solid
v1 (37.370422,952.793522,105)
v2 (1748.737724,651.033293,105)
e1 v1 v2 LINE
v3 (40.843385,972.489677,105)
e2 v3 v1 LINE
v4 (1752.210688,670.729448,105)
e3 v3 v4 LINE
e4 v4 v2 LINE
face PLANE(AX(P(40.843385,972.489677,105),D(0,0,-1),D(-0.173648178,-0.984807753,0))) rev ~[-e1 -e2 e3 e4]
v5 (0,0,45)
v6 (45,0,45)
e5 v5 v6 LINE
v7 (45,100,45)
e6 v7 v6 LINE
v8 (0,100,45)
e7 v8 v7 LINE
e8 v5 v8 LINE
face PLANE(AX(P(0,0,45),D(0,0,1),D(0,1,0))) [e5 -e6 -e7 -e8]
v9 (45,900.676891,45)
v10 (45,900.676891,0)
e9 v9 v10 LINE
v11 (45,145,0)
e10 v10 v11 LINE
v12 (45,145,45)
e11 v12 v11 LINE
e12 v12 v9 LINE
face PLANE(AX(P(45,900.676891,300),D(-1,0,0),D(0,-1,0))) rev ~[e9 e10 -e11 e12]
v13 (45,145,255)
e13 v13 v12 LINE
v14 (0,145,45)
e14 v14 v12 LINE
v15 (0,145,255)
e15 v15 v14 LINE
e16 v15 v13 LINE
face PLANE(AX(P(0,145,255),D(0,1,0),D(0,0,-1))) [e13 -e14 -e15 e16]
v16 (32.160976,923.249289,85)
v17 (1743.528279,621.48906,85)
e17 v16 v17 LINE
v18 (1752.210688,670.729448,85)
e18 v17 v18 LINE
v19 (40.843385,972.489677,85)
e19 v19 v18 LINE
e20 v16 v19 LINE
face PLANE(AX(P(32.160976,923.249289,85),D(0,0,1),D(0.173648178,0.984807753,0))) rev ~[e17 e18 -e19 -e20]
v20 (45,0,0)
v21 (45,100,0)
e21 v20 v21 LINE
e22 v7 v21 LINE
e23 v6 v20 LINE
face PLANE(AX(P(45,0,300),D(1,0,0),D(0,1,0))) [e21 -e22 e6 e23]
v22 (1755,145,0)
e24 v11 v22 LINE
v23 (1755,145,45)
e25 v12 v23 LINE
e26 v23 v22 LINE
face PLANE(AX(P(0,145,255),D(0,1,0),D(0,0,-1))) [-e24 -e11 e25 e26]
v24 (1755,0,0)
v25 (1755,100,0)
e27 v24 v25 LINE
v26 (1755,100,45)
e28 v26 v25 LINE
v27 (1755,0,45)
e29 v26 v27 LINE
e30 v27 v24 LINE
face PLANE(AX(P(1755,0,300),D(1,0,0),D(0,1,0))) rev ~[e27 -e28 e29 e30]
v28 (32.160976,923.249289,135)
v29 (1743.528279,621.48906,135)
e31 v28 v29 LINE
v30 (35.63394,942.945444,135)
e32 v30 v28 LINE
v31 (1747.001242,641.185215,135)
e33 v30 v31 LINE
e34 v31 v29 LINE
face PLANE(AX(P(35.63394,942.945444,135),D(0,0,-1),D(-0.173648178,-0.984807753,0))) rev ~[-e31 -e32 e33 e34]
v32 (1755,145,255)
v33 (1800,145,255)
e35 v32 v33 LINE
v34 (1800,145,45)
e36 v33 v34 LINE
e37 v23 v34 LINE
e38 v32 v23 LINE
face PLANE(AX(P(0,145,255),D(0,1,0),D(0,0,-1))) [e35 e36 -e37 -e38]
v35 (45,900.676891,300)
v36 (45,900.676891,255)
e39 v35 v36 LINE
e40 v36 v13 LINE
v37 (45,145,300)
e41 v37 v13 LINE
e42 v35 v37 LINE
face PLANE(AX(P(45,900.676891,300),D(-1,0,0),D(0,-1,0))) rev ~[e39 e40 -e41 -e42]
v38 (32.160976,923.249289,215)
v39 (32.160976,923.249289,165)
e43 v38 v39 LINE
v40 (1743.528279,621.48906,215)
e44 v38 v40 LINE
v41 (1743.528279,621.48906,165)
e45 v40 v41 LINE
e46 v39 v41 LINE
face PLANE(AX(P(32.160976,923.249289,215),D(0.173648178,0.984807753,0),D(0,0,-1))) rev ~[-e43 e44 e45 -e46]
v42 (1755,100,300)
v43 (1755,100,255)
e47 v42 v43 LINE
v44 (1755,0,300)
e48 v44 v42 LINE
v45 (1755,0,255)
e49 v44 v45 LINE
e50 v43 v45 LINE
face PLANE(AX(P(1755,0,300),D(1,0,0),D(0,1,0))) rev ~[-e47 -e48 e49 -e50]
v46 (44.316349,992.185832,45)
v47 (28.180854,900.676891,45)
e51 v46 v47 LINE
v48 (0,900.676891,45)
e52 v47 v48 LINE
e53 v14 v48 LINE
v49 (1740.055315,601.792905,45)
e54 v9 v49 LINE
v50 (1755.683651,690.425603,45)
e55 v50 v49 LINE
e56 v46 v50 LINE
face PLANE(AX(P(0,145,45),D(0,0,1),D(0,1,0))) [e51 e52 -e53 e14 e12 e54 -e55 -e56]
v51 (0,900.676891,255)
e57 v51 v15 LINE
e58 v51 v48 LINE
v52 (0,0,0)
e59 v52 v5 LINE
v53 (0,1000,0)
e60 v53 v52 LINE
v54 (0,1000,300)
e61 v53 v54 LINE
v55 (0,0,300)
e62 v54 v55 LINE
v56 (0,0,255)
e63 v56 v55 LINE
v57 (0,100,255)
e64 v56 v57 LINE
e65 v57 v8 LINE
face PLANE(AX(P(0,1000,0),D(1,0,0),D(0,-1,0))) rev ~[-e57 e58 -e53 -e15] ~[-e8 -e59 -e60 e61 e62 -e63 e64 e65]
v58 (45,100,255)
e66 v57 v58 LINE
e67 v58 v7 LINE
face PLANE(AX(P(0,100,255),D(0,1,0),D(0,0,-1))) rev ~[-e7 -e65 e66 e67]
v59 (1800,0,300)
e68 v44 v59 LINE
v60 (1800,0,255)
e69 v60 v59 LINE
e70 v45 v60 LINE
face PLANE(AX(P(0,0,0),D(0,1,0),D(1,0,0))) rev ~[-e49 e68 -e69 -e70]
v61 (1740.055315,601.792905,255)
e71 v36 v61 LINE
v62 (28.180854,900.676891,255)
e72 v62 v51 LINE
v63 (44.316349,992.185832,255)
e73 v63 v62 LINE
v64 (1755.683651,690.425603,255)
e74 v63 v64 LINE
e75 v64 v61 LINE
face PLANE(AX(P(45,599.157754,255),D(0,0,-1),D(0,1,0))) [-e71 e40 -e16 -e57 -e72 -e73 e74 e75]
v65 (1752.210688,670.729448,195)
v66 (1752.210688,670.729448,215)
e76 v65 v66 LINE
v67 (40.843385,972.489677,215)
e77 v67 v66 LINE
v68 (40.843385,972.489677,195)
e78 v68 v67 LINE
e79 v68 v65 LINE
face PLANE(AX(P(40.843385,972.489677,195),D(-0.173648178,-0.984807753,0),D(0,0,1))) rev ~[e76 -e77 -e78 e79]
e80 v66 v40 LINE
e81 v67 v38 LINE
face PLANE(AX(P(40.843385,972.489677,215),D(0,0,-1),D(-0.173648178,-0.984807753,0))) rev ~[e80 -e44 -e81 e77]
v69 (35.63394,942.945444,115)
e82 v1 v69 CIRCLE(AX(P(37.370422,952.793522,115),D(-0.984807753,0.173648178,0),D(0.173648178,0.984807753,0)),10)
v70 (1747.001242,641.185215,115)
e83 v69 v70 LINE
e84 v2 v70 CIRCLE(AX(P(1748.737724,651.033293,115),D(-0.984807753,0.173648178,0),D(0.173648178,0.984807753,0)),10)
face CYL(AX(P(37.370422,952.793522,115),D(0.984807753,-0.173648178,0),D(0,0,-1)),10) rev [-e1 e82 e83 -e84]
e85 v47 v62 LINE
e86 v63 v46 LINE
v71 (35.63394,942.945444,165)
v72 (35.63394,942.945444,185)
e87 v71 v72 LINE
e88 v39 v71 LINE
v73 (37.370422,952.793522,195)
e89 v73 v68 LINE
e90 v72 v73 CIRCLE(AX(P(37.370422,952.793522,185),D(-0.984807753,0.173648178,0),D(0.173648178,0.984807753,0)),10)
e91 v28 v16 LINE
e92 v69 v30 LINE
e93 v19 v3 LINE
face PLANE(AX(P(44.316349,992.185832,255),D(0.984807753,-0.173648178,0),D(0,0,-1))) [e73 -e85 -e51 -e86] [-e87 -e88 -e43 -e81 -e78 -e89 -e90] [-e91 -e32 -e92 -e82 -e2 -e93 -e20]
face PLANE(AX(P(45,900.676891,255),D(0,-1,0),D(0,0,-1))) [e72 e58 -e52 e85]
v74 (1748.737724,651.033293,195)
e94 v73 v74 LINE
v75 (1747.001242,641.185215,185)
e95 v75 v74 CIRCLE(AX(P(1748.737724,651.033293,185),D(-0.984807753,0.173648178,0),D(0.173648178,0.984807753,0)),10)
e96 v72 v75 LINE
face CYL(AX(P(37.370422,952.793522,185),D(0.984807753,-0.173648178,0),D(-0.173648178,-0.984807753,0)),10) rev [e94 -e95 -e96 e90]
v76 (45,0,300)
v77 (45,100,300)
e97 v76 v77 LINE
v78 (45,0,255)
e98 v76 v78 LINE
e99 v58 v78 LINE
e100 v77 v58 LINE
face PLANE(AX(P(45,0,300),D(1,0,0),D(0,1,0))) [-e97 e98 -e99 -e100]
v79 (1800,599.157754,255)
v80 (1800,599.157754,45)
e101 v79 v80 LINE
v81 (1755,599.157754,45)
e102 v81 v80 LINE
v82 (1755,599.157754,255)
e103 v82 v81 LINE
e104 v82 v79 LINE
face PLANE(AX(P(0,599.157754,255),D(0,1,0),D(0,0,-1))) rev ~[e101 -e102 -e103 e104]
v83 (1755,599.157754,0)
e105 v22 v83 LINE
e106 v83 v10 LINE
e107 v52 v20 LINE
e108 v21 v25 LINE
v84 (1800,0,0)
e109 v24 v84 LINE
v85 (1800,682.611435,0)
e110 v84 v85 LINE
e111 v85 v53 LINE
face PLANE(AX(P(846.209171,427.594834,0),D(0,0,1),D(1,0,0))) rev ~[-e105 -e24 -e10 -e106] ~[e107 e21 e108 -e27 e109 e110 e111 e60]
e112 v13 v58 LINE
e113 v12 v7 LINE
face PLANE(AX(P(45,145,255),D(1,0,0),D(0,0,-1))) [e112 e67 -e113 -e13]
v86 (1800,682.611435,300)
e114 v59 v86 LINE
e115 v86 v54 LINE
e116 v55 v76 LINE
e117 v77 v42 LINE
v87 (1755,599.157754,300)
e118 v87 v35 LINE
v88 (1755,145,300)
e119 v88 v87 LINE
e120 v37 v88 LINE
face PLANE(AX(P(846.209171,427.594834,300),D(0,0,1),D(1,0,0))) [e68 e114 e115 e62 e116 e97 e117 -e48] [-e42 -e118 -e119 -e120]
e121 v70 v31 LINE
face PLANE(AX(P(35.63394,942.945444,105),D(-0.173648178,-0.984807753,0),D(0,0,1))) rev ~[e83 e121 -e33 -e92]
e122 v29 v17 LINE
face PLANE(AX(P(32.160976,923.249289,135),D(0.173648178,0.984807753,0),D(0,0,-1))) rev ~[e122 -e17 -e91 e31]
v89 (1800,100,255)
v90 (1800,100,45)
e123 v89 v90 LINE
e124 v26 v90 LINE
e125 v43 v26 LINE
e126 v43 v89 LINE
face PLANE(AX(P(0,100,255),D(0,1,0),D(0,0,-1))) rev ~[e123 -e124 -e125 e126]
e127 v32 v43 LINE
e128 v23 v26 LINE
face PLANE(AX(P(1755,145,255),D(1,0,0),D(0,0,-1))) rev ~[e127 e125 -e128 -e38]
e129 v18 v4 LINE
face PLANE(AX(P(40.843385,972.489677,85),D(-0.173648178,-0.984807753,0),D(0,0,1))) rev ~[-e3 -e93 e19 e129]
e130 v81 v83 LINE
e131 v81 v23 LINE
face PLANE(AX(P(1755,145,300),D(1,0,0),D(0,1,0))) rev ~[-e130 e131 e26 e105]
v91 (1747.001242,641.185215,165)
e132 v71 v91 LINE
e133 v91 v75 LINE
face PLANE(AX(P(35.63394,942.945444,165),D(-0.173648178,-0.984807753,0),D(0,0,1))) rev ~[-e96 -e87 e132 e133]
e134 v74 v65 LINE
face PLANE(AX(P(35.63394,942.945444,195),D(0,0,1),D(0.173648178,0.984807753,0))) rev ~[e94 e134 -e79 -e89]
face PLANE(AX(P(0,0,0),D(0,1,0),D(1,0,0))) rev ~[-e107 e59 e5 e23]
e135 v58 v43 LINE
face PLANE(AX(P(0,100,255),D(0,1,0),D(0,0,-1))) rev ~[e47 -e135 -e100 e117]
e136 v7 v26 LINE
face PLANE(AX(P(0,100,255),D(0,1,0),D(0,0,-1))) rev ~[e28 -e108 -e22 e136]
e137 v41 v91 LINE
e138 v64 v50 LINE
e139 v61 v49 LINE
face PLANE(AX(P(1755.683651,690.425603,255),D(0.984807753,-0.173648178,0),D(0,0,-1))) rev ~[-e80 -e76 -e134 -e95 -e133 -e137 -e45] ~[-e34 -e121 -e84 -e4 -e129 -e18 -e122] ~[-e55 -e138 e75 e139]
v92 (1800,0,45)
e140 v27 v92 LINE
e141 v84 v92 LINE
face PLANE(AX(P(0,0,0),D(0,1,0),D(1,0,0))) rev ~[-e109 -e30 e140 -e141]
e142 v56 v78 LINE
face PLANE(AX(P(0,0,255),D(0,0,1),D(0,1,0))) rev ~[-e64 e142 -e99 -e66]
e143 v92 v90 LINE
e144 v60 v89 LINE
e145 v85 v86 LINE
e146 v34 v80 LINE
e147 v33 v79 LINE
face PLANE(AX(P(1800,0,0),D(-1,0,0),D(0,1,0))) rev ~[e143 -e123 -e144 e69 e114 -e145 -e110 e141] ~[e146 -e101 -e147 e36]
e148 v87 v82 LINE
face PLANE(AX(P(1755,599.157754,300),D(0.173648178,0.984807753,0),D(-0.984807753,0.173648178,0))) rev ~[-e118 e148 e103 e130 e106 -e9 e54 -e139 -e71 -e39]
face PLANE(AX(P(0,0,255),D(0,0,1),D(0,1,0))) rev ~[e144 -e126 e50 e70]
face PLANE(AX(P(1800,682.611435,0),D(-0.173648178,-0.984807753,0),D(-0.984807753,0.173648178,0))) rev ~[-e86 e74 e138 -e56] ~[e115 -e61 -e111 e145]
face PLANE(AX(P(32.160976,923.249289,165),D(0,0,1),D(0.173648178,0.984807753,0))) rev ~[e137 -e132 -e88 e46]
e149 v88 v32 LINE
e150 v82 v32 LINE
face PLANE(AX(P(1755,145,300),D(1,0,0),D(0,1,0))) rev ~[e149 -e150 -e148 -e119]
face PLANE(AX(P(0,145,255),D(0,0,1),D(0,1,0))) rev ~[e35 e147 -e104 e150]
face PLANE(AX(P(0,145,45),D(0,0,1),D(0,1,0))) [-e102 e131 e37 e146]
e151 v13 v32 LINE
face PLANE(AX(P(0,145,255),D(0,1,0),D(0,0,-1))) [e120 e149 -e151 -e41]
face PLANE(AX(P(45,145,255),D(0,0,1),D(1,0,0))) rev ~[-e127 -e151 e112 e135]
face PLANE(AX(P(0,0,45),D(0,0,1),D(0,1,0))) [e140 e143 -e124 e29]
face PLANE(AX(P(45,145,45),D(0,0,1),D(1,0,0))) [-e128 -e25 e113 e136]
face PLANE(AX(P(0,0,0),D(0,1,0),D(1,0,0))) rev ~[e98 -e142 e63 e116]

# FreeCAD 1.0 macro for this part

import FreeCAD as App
import Part
import Sketcher

V = App.Vector
Q = App.Units.Quantity


def edges_at(feature, points):
    """Names of the edges that pass closest to the given points."""
    edges = feature.Shape.Edges
    near = lambda p: min(range(len(edges)), key=lambda i: edges[i].distToShape(Part.Vertex(*p))[0])
    return sorted({f"Edge{near(p) + 1}" for p in points})


def add_polygon(sketch, points):
    """Adds a closed chain of lines whose ends are joined by coincident constraints."""
    first, n = sketch.GeometryCount, len(points)
    for a, b in zip(points, points[1:] + points[:1]):
        sketch.addGeometry(Part.LineSegment(App.Vector(*a, 0), App.Vector(*b, 0)), False)
    for i in range(n):
        sketch.addConstraint(Sketcher.Constraint("Coincident", first + i, 2, first + (i + 1) % n, 1))

doc = App.newDocument("Part")
body = doc.addObject("PartDesign::Body", "Body")

# Sketch on XY plane
sketch1 = body.newObject("Sketcher::SketchObject", "Sketch")
sketch1.AttachmentSupport = (doc.getObject("XY_Plane"), [""])
sketch1.MapMode = "FlatFace"
add_polygon(sketch1, [(0, 1000), (0, 0), (1800, 0), (1800, 682.611435)])  # lines 0-3
sketch1.addConstraint([
    Sketcher.Constraint("Vertical", 0),
    Sketcher.Constraint("Horizontal", 1),
    Sketcher.Constraint("Vertical", 2),
    Sketcher.Constraint("Coincident", 0, 2, -1, 1),
    Sketcher.Constraint("DistanceX", 1, 1, 1, 2, Q("1800 mm")),
    Sketcher.Constraint("DistanceY", 0, 2, 0, 1, Q("1000 mm")),
    Sketcher.Constraint("Angle", 3, Q("170 deg")),
])
pad1 = body.newObject("PartDesign::Pad", "Pad")
pad1.Profile = sketch1
pad1.Length = 300

# Sketch on XY plane
sketch2 = body.newObject("Sketcher::SketchObject", "Sketch001")
sketch2.AttachmentSupport = (doc.getObject("XY_Plane"), [""])
sketch2.MapMode = "FlatFace"
sketch2.AttachmentOffset = App.Placement(V(0, 0, 300), App.Rotation())
add_polygon(sketch2, [(45, 100), (45, 0), (1755, 0), (1755, 100)])  # lines 0-3
add_polygon(sketch2, [(45, 900.676891), (45, 145), (1755, 145), (1755, 599.157754)])  # lines 4-7
sketch2.addConstraint([
    Sketcher.Constraint("Vertical", 0),
    Sketcher.Constraint("Horizontal", 1),
    Sketcher.Constraint("Vertical", 2),
    Sketcher.Constraint("Horizontal", 3),
    Sketcher.Constraint("Vertical", 4),
    Sketcher.Constraint("Horizontal", 5),
    Sketcher.Constraint("Vertical", 6),
    Sketcher.Constraint("PointOnObject", 0, 2, -1),
    Sketcher.Constraint("Vertical", 3, 2, 4, 2),
    Sketcher.Constraint("Vertical", 2, 2, 5, 2),
    Sketcher.Constraint("DistanceX", 1, 1, 1, 2, Q("1710 mm")),
    Sketcher.Constraint("DistanceY", 0, 2, 0, 1, Q("100 mm")),
    Sketcher.Constraint("Angle", 7, Q("170 deg")),
    Sketcher.Constraint("DistanceX", -1, 1, 0, 2, Q("45 mm")),
    Sketcher.Constraint("DistanceY", -1, 1, 4, 2, Q("145 mm")),
    Sketcher.Constraint("DistanceY", 4, 2, 4, 1, Q("755.676891 mm")),
])
pocket1 = body.newObject("PartDesign::Pocket", "Pocket")
pocket1.Profile = sketch2
pocket1.Length = 300

# Sketch on YZ plane
sketch3 = body.newObject("Sketcher::SketchObject", "Sketch002")
sketch3.AttachmentSupport = (doc.getObject("YZ_Plane"), [""])
sketch3.MapMode = "FlatFace"
add_polygon(sketch3, [(599.157754, 255), (145, 255), (145, 45), (599.157754, 45)])  # lines 0-3
add_polygon(sketch3, [(100, 255), (0, 255), (0, 45), (100, 45)])  # lines 4-7
sketch3.addConstraint([
    Sketcher.Constraint("Horizontal", 0),
    Sketcher.Constraint("Vertical", 1),
    Sketcher.Constraint("Horizontal", 2),
    Sketcher.Constraint("Vertical", 3),
    Sketcher.Constraint("Horizontal", 4),
    Sketcher.Constraint("Vertical", 5),
    Sketcher.Constraint("Horizontal", 6),
    Sketcher.Constraint("Vertical", 7),
    Sketcher.Constraint("PointOnObject", 4, 2, -2),
    Sketcher.Constraint("Horizontal", 3, 2, 4, 2),
    Sketcher.Constraint("Horizontal", 2, 2, 5, 2),
    Sketcher.Constraint("DistanceX", 4, 2, 4, 1, Q("100 mm")),
    Sketcher.Constraint("DistanceY", 1, 2, 1, 1, Q("210 mm")),
    Sketcher.Constraint("DistanceX", -1, 1, 0, 2, Q("145 mm")),
    Sketcher.Constraint("DistanceY", -1, 1, 0, 2, Q("255 mm")),
    Sketcher.Constraint("DistanceX", 0, 2, 0, 1, Q("454.157754 mm")),
])
pocket2 = body.newObject("PartDesign::Pocket", "Pocket001")
pocket2.Profile = sketch3
pocket2.Length = 1800
pocket2.Reversed = True

# Sketch on XZ plane
sketch4 = body.newObject("Sketcher::SketchObject", "Sketch003")
sketch4.AttachmentSupport = (doc.getObject("XZ_Plane"), [""])
sketch4.MapMode = "FlatFace"
sketch4.AttachmentOffset = App.Placement(V(0, 0, -145), App.Rotation())
add_polygon(sketch4, [(45, 45), (45, 255), (1755, 255), (1755, 45)])  # lines 0-3
sketch4.addConstraint([
    Sketcher.Constraint("Vertical", 0),
    Sketcher.Constraint("Horizontal", 1),
    Sketcher.Constraint("Vertical", 2),
    Sketcher.Constraint("Horizontal", 3),
    Sketcher.Constraint("DistanceX", 1, 1, 1, 2, Q("1710 mm")),
    Sketcher.Constraint("DistanceY", 0, 1, 0, 2, Q("210 mm")),
    Sketcher.Constraint("DistanceX", -1, 1, 0, 2, Q("45 mm")),
    Sketcher.Constraint("DistanceY", -1, 1, 0, 2, Q("255 mm")),
])
pocket3 = body.newObject("PartDesign::Pocket", "Pocket002")
pocket3.Profile = sketch4
pocket3.Length = 45
pocket3.Reversed = True

# Sketch on YZ plane
sketch5 = body.newObject("Sketcher::SketchObject", "Sketch004")
sketch5.AttachmentSupport = (doc.getObject("YZ_Plane"), [""])
sketch5.MapMode = "FlatFace"
sketch5.AttachmentOffset = App.Placement(V(0, 0, 45), App.Rotation())
add_polygon(sketch5, [(900.676891, 255), (599.157754, 255), (599.157754, 45), (900.676891, 45)])  # lines 0-3
sketch5.addConstraint([
    Sketcher.Constraint("Horizontal", 0),
    Sketcher.Constraint("Vertical", 1),
    Sketcher.Constraint("Horizontal", 2),
    Sketcher.Constraint("Vertical", 3),
    Sketcher.Constraint("DistanceY", 1, 2, 1, 1, Q("210 mm")),
    Sketcher.Constraint("DistanceY", -1, 1, 0, 2, Q("255 mm")),
    Sketcher.Constraint("DistanceX", 0, 2, 0, 1, Q("301.519137 mm")),
    Sketcher.Constraint("DistanceX", -1, 1, 2, 2, Q("900.676891 mm")),
])
pocket4 = body.newObject("PartDesign::Pocket", "Pocket003")
pocket4.Profile = sketch5
pocket4.Length = 45

# Sketch on an angled plane
sketch6 = body.newObject("Sketcher::SketchObject", "Sketch005")
sketch6.Placement = App.Placement(V(171.010072, 969.84631, 0), App.Rotation(V(0.984807753, -0.173648178, 0), V(0, 0, -1), V(0.173648178, 0.984807753, 0), "ZXY"))
add_polygon(sketch6, [(-128.648178, -45), (-128.648178, -255), (1609.119724, -255), (1609.119724, -45)])  # lines 0-3
sketch6.addConstraint([
    Sketcher.Constraint("Vertical", 0),
    Sketcher.Constraint("Horizontal", 1),
    Sketcher.Constraint("Vertical", 2),
    Sketcher.Constraint("Horizontal", 3),
    Sketcher.Constraint("DistanceY", 0, 2, 0, 1, Q("210 mm")),
    Sketcher.Constraint("DistanceY", 0, 2, -1, 1, Q("255 mm")),
    Sketcher.Constraint("DistanceX", 1, 1, 1, 2, Q("1737.767902 mm")),
    Sketcher.Constraint("DistanceX", 0, 2, -1, 1, Q("128.648178 mm")),
])
pocket5 = body.newObject("PartDesign::Pocket", "Pocket004")
pocket5.Profile = sketch6
pocket5.Length = 150

# Sketch on an angled plane
sketch7 = body.newObject("Sketcher::SketchObject", "Sketch006")
sketch7.Placement = App.Placement(V(-126.693723, 22.339522, 0), App.Rotation(V(0, 0, -1), V(0.173648178, 0.984807753, 0), V(0.984807753, -0.173648178, 0), "ZXY"))
add_polygon(sketch7, [(-215, 964.807753), (-215, 914.807753), (-165, 914.807753), (-165, 934.807753), (-195, 934.807753), (-195, 964.807753)])  # lines 0-5
add_polygon(sketch7, [(-135, 914.807753), (-85, 914.807753), (-85, 964.807753), (-105, 964.807753), (-105, 934.807753), (-135, 934.807753)])  # lines 6-11
sketch7.addConstraint([
    Sketcher.Constraint("Vertical", 0),
    Sketcher.Constraint("Horizontal", 1),
    Sketcher.Constraint("Vertical", 2),
    Sketcher.Constraint("Horizontal", 3),
    Sketcher.Constraint("Vertical", 4),
    Sketcher.Constraint("Horizontal", 5),
    Sketcher.Constraint("Horizontal", 6),
    Sketcher.Constraint("Vertical", 7),
    Sketcher.Constraint("Horizontal", 8),
    Sketcher.Constraint("Vertical", 9),
    Sketcher.Constraint("Horizontal", 10),
    Sketcher.Constraint("Vertical", 11),
    Sketcher.Constraint("Horizontal", 1, 2, 6, 2),
    Sketcher.Constraint("Horizontal", 5, 2, 7, 2),
    Sketcher.Constraint("Horizontal", 3, 2, 9, 2),
    Sketcher.Constraint("Equal", 1, 6),
    Sketcher.Constraint("Equal", 5, 8),
    Sketcher.Constraint("Equal", 6, 0),
    Sketcher.Constraint("Equal", 8, 2),
    Sketcher.Constraint("DistanceX", 1, 1, 1, 2, Q("50 mm")),
    Sketcher.Constraint("DistanceX", 3, 2, 3, 1, Q("30 mm")),
    Sketcher.Constraint("DistanceX", 0, 2, -1, 1, Q("215 mm")),
    Sketcher.Constraint("DistanceX", 6, 2, -1, 1, Q("85 mm")),
    Sketcher.Constraint("DistanceY", -1, 1, 0, 2, Q("914.807753 mm")),
])
pad2 = body.newObject("PartDesign::Pad", "Pad001")
pad2.Profile = sketch7
pad2.Length = 1737.767901
doc.recompute()

fillet = body.newObject("PartDesign::Fillet", "Fillet")
fillet.Base = (pad2, edges_at(pad2, [(891.318, 792.065, 195), (891.318, 792.065, 105)]))
fillet.Radius = 10

doc.recompute()
